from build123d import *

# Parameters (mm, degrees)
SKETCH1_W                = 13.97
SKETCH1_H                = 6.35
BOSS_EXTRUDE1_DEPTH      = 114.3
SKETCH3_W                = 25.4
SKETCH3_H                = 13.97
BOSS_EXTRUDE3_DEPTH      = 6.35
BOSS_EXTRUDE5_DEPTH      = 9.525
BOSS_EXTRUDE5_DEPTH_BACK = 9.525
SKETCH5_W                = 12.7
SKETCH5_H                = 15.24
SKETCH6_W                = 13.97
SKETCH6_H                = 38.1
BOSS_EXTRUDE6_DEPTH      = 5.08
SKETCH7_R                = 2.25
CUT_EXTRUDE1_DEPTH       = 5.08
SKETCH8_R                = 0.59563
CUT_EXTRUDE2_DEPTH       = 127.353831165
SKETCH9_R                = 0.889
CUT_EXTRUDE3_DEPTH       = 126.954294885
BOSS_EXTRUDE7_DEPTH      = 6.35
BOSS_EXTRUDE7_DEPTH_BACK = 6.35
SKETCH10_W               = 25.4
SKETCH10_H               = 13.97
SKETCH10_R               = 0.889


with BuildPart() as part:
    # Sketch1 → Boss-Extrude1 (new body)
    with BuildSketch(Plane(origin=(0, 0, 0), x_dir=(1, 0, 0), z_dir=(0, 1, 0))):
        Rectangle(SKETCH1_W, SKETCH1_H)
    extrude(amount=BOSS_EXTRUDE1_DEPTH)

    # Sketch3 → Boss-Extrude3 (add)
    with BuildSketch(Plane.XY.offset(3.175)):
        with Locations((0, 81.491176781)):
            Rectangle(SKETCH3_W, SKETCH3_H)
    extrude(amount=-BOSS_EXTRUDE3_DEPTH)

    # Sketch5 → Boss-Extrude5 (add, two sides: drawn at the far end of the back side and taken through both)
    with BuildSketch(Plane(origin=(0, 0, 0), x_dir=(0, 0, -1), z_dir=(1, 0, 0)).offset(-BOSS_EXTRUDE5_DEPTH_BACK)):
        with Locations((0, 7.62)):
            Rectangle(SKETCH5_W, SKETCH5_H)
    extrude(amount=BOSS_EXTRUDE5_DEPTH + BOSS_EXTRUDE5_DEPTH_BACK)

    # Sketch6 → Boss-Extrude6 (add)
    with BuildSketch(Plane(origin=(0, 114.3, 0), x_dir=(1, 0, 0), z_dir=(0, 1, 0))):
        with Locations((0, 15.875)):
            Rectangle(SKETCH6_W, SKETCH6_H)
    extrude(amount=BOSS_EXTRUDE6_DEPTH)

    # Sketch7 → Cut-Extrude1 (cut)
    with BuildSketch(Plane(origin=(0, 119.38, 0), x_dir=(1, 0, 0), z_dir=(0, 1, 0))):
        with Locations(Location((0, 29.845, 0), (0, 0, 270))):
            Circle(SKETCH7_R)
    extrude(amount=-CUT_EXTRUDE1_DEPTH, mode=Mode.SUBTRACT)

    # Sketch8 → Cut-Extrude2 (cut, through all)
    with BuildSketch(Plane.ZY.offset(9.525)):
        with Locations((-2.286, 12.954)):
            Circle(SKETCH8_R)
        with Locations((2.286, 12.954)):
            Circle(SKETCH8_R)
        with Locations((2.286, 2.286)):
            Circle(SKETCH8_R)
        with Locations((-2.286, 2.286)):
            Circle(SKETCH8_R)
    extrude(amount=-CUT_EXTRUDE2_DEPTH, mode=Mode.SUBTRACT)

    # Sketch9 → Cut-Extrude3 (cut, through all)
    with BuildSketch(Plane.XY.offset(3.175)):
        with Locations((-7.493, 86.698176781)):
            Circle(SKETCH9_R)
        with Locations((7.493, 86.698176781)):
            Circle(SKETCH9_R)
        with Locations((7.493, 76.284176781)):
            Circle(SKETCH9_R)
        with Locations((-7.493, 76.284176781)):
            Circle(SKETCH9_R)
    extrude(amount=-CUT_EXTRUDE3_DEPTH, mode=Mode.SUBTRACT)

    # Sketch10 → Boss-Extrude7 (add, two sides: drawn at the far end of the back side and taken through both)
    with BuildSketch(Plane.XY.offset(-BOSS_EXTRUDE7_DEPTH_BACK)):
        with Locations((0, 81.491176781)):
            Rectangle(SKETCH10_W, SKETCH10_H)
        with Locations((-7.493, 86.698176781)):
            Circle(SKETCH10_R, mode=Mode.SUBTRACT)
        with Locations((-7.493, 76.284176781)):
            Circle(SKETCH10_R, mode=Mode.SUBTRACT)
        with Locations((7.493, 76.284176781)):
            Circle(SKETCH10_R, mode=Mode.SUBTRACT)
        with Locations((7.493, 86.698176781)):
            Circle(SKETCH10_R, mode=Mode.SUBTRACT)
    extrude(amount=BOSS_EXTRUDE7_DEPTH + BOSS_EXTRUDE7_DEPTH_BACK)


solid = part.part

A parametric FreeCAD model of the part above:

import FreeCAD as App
import Part
import Sketcher

V = App.Vector
Q = App.Units.Quantity

doc = App.newDocument("Part")
body = doc.addObject("PartDesign::Body", "Body")

# Sketch on XZ plane
sketch1 = doc.addObject("Sketcher::SketchObject", "Sketch")
body.addObject(sketch1)
sketch1.AttachmentSupport = (doc.XZ_Plane, [""])
sketch1.MapMode = "FlatFace"
sketch1.addGeometry(Part.LineSegment(V(-6.985, -3.175, 0), V(-6.985, 3.175, 0)), False)
sketch1.addGeometry(Part.LineSegment(V(-6.985, 3.175, 0), V(6.985, 3.175, 0)), False)
sketch1.addGeometry(Part.LineSegment(V(6.985, 3.175, 0), V(6.985, -3.175, 0)), False)
sketch1.addGeometry(Part.LineSegment(V(6.985, -3.175, 0), V(-6.985, -3.175, 0)), False)
sketch1.addConstraint(Sketcher.Constraint("Coincident", 0, 2, 1, 1))
sketch1.addConstraint(Sketcher.Constraint("Coincident", 1, 2, 2, 1))
sketch1.addConstraint(Sketcher.Constraint("Coincident", 2, 2, 3, 1))
sketch1.addConstraint(Sketcher.Constraint("Coincident", 3, 2, 0, 1))
sketch1.addConstraint(Sketcher.Constraint("Vertical", 0))
sketch1.addConstraint(Sketcher.Constraint("Horizontal", 1))
sketch1.addConstraint(Sketcher.Constraint("Vertical", 2))
sketch1.addConstraint(Sketcher.Constraint("Horizontal", 3))
sketch1.addConstraint(Sketcher.Constraint("Symmetric", 0, 2, 2, 2, -1, 1))
sketch1.addConstraint(Sketcher.Constraint("DistanceX", 1, 1, 1, 2, Q("0.55 in")))
sketch1.addConstraint(Sketcher.Constraint("DistanceY", 0, 1, 0, 2, Q("0.25 in")))
pad1 = doc.addObject("PartDesign::Pad", "Pad")
body.addObject(pad1)
pad1.Profile = sketch1
pad1.Length = Q("4.5 in")
pad1.Reversed = True

# Sketch on XY plane
sketch2 = doc.addObject("Sketcher::SketchObject", "Sketch001")
body.addObject(sketch2)
sketch2.AttachmentSupport = (doc.XY_Plane, [""])
sketch2.MapMode = "FlatFace"
sketch2.AttachmentOffset = App.Placement(V(0, 0, 0.125 * 25.4), App.Rotation())
sketch2.addGeometry(Part.LineSegment(V(-12.7, 88.476177, 0), V(-12.7, 74.506177, 0)), False)
sketch2.addGeometry(Part.LineSegment(V(-12.7, 74.506177, 0), V(12.7, 74.506177, 0)), False)
sketch2.addGeometry(Part.LineSegment(V(12.7, 74.506177, 0), V(12.7, 88.476177, 0)), False)
sketch2.addGeometry(Part.LineSegment(V(12.7, 88.476177, 0), V(-12.7, 88.476177, 0)), False)
sketch2.addConstraint(Sketcher.Constraint("Coincident", 0, 2, 1, 1))
sketch2.addConstraint(Sketcher.Constraint("Coincident", 1, 2, 2, 1))
sketch2.addConstraint(Sketcher.Constraint("Coincident", 2, 2, 3, 1))
sketch2.addConstraint(Sketcher.Constraint("Coincident", 3, 2, 0, 1))
sketch2.addConstraint(Sketcher.Constraint("Vertical", 0))
sketch2.addConstraint(Sketcher.Constraint("Horizontal", 1))
sketch2.addConstraint(Sketcher.Constraint("Vertical", 2))
sketch2.addConstraint(Sketcher.Constraint("Horizontal", 3))
sketch2.addConstraint(Sketcher.Constraint("DistanceX", 1, 1, 1, 2, Q("1 in")))
sketch2.addConstraint(Sketcher.Constraint("DistanceY", 0, 2, 0, 1, Q("0.55 in")))
sketch2.addConstraint(Sketcher.Constraint("DistanceX", 0, 2, -1, 1, Q("0.5 in")))
sketch2.addConstraint(Sketcher.Constraint("DistanceY", -1, 1, 0, 2, 74.506177))
pad2 = doc.addObject("PartDesign::Pad", "Pad001")
body.addObject(pad2)
pad2.Profile = sketch2
pad2.Length = Q("0.25 in")
pad2.Reversed = True

# Sketch on YZ plane
sketch3 = doc.addObject("Sketcher::SketchObject", "Sketch002")
body.addObject(sketch3)
sketch3.AttachmentSupport = (doc.YZ_Plane, [""])
sketch3.MapMode = "FlatFace"
sketch3.addGeometry(Part.LineSegment(V(15.24, 6.35, 0), V(0, 6.35, 0)), False)
sketch3.addGeometry(Part.LineSegment(V(0, 6.35, 0), V(0, -6.35, 0)), False)
sketch3.addGeometry(Part.LineSegment(V(0, -6.35, 0), V(15.24, -6.35, 0)), False)
sketch3.addGeometry(Part.LineSegment(V(15.24, -6.35, 0), V(15.24, 6.35, 0)), False)
sketch3.addConstraint(Sketcher.Constraint("Coincident", 0, 2, 1, 1))
sketch3.addConstraint(Sketcher.Constraint("Coincident", 1, 2, 2, 1))
sketch3.addConstraint(Sketcher.Constraint("Coincident", 2, 2, 3, 1))
sketch3.addConstraint(Sketcher.Constraint("Coincident", 3, 2, 0, 1))
sketch3.addConstraint(Sketcher.Constraint("Horizontal", 0))
sketch3.addConstraint(Sketcher.Constraint("Vertical", 1))
sketch3.addConstraint(Sketcher.Constraint("Horizontal", 2))
sketch3.addConstraint(Sketcher.Constraint("Vertical", 3))
sketch3.addConstraint(Sketcher.Constraint("Symmetric", 0, 2, 1, 2, -1, 1))
sketch3.addConstraint(Sketcher.Constraint("DistanceX", 0, 2, 0, 1, Q("0.6 in")))
sketch3.addConstraint(Sketcher.Constraint("DistanceY", 1, 2, 1, 1, Q("0.5 in")))
pad3 = doc.addObject("PartDesign::Pad", "Pad002")
body.addObject(pad3)
pad3.Profile = sketch3
pad3.Type = "TwoLengths"
pad3.Length = Q("0.375 in")
pad3.Length2 = Q("0.375 in")

# Sketch on XZ plane
sketch4 = doc.addObject("Sketcher::SketchObject", "Sketch003")
body.addObject(sketch4)
sketch4.AttachmentSupport = (doc.XZ_Plane, [""])
sketch4.MapMode = "FlatFace"
sketch4.AttachmentOffset = App.Placement(V(0, 0, -4.5 * 25.4), App.Rotation())
sketch4.addGeometry(Part.LineSegment(V(-6.985, -34.925, 0), V(-6.985, 3.175, 0)), False)
sketch4.addGeometry(Part.LineSegment(V(-6.985, 3.175, 0), V(6.985, 3.175, 0)), False)
sketch4.addGeometry(Part.LineSegment(V(6.985, 3.175, 0), V(6.985, -34.925, 0)), False)
sketch4.addGeometry(Part.LineSegment(V(6.985, -34.925, 0), V(-6.985, -34.925, 0)), False)
sketch4.addConstraint(Sketcher.Constraint("Coincident", 0, 2, 1, 1))
sketch4.addConstraint(Sketcher.Constraint("Coincident", 1, 2, 2, 1))
sketch4.addConstraint(Sketcher.Constraint("Coincident", 2, 2, 3, 1))
sketch4.addConstraint(Sketcher.Constraint("Coincident", 3, 2, 0, 1))
sketch4.addConstraint(Sketcher.Constraint("Vertical", 0))
sketch4.addConstraint(Sketcher.Constraint("Horizontal", 1))
sketch4.addConstraint(Sketcher.Constraint("Vertical", 2))
sketch4.addConstraint(Sketcher.Constraint("Horizontal", 3))
sketch4.addConstraint(Sketcher.Constraint("DistanceY", 0, 1, 0, 2, Q("1.5 in")))
sketch4.addConstraint(Sketcher.Constraint("DistanceX", 1, 1, 1, 2, Q("0.55 in")))
sketch4.addConstraint(Sketcher.Constraint("DistanceX", 0, 2, -1, 1, Q("0.275 in")))
sketch4.addConstraint(Sketcher.Constraint("DistanceY", -1, 1, 0, 2, Q("0.125 in")))
pad4 = doc.addObject("PartDesign::Pad", "Pad003")
body.addObject(pad4)
pad4.Profile = sketch4
pad4.Length = Q("0.2 in")
pad4.Reversed = True

# Sketch on XZ plane
sketch5 = doc.addObject("Sketcher::SketchObject", "Sketch004")
body.addObject(sketch5)
sketch5.AttachmentSupport = (doc.XZ_Plane, [""])
sketch5.MapMode = "FlatFace"
sketch5.AttachmentOffset = App.Placement(V(0, 0, -4.7 * 25.4), App.Rotation())
sketch5.addGeometry(Part.Circle(V(0, -29.845, 0), V(0, 0, 1), 2.25), False)
sketch5.addConstraint(Sketcher.Constraint("PointOnObject", 0, 3, -2))
sketch5.addConstraint(Sketcher.Constraint("Diameter", 0, 4.5))
sketch5.addConstraint(Sketcher.Constraint("DistanceY", 0, 3, -1, 1, Q("1.175 in")))
pocket1 = doc.addObject("PartDesign::Pocket", "Pocket")
body.addObject(pocket1)
pocket1.Profile = sketch5
pocket1.Length = Q("0.2 in")
pocket1.Reversed = True

# Sketch on YZ plane
sketch6 = doc.addObject("Sketcher::SketchObject", "Sketch005")
body.addObject(sketch6)
sketch6.AttachmentSupport = (doc.YZ_Plane, [""])
sketch6.MapMode = "FlatFace"
sketch6.AttachmentOffset = App.Placement(V(0, 0, -0.375 * 25.4), App.Rotation())
sketch6.addGeometry(Part.Circle(V(12.954, -2.286, 0), V(0, 0, 1), 0.59563), False)
sketch6.addGeometry(Part.Circle(V(12.954, 2.286, 0), V(0, 0, 1), 0.59563), False)
sketch6.addGeometry(Part.Circle(V(2.286, 2.286, 0), V(0, 0, 1), 0.59563), False)
sketch6.addGeometry(Part.Circle(V(2.286, -2.286, 0), V(0, 0, 1), 0.59563), False)
sketch6.addConstraint(Sketcher.Constraint("Equal", 0, 1))
sketch6.addConstraint(Sketcher.Constraint("Equal", 1, 2))
sketch6.addConstraint(Sketcher.Constraint("Equal", 2, 3))
sketch6.addConstraint(Sketcher.Constraint("Symmetric", 0, 3, 1, 3, -1))
sketch6.addConstraint(Sketcher.Constraint("Symmetric", 2, 3, 3, 3, -1))
sketch6.addConstraint(Sketcher.Constraint("Horizontal", 1, 3, 2, 3))
sketch6.addConstraint(Sketcher.Constraint("Diameter", 0, Q("0.0469 in")))
sketch6.addConstraint(Sketcher.Constraint("DistanceX", -1, 1, 0, 3, Q("0.51 in")))
sketch6.addConstraint(Sketcher.Constraint("DistanceY", 0, 3, -1, 1, Q("0.09 in")))
sketch6.addConstraint(Sketcher.Constraint("DistanceX", -1, 1, 2, 3, Q("0.09 in")))
pocket2 = doc.addObject("PartDesign::Pocket", "Pocket001")
body.addObject(pocket2)
pocket2.Profile = sketch6
pocket2.Type = "ThroughAll"
pocket2.Reversed = True

# Sketch on XY plane
sketch7 = doc.addObject("Sketcher::SketchObject", "Sketch006")
body.addObject(sketch7)
sketch7.AttachmentSupport = (doc.XY_Plane, [""])
sketch7.MapMode = "FlatFace"
sketch7.AttachmentOffset = App.Placement(V(0, 0, 0.125 * 25.4), App.Rotation())
sketch7.addGeometry(Part.Circle(V(-7.493, 86.698177, 0), V(0, 0, 1), 0.889), False)
sketch7.addGeometry(Part.Circle(V(7.493, 86.698177, 0), V(0, 0, 1), 0.889), False)
sketch7.addGeometry(Part.Circle(V(7.493, 76.284177, 0), V(0, 0, 1), 0.889), False)
sketch7.addGeometry(Part.Circle(V(-7.493, 76.284177, 0), V(0, 0, 1), 0.889), False)
sketch7.addConstraint(Sketcher.Constraint("Equal", 0, 1))
sketch7.addConstraint(Sketcher.Constraint("Equal", 1, 2))
sketch7.addConstraint(Sketcher.Constraint("Equal", 2, 3))
sketch7.addConstraint(Sketcher.Constraint("Symmetric", 0, 3, 1, 3, -2))
sketch7.addConstraint(Sketcher.Constraint("Symmetric", 2, 3, 3, 3, -2))
sketch7.addConstraint(Sketcher.Constraint("Vertical", 1, 3, 2, 3))
sketch7.addConstraint(Sketcher.Constraint("Diameter", 0, Q("0.07 in")))
sketch7.addConstraint(Sketcher.Constraint("DistanceX", 0, 3, 1, 3, Q("0.59 in")))
sketch7.addConstraint(Sketcher.Constraint("DistanceY", 2, 3, 1, 3, Q("0.41 in")))
sketch7.addConstraint(Sketcher.Constraint("DistanceY", -1, 1, 0, 3, 86.698177))
pocket3 = doc.addObject("PartDesign::Pocket", "Pocket002")
body.addObject(pocket3)
pocket3.Profile = sketch7
pocket3.Type = "ThroughAll"

# Sketch on XY plane
sketch8 = doc.addObject("Sketcher::SketchObject", "Sketch007")
body.addObject(sketch8)
sketch8.AttachmentSupport = (doc.XY_Plane, [""])
sketch8.MapMode = "FlatFace"
sketch8.addGeometry(Part.LineSegment(V(-12.7, 88.476177, 0), V(-12.7, 74.506177, 0)), False)
sketch8.addGeometry(Part.LineSegment(V(-12.7, 74.506177, 0), V(12.7, 74.506177, 0)), False)
sketch8.addGeometry(Part.LineSegment(V(12.7, 74.506177, 0), V(12.7, 88.476177, 0)), False)
sketch8.addGeometry(Part.LineSegment(V(12.7, 88.476177, 0), V(-12.7, 88.476177, 0)), False)
sketch8.addGeometry(Part.Circle(V(-7.493, 76.284177, 0), V(0, 0, 1), 0.889), False)
sketch8.addGeometry(Part.Circle(V(7.493, 76.284177, 0), V(0, 0, 1), 0.889), False)
sketch8.addGeometry(Part.Circle(V(-7.493, 86.698177, 0), V(0, 0, 1), 0.889), False)
sketch8.addGeometry(Part.Circle(V(7.493, 86.698177, 0), V(0, 0, 1), 0.889), False)
sketch8.addConstraint(Sketcher.Constraint("Coincident", 0, 2, 1, 1))
sketch8.addConstraint(Sketcher.Constraint("Coincident", 1, 2, 2, 1))
sketch8.addConstraint(Sketcher.Constraint("Coincident", 2, 2, 3, 1))
sketch8.addConstraint(Sketcher.Constraint("Coincident", 3, 2, 0, 1))
sketch8.addConstraint(Sketcher.Constraint("Vertical", 0))
sketch8.addConstraint(Sketcher.Constraint("Horizontal", 1))
sketch8.addConstraint(Sketcher.Constraint("Vertical", 2))
sketch8.addConstraint(Sketcher.Constraint("Horizontal", 3))
sketch8.addConstraint(Sketcher.Constraint("Equal", 4, 5))
sketch8.addConstraint(Sketcher.Constraint("Equal", 5, 6))
sketch8.addConstraint(Sketcher.Constraint("Equal", 6, 7))
sketch8.addConstraint(Sketcher.Constraint("Symmetric", 4, 3, 5, 3, -2))
sketch8.addConstraint(Sketcher.Constraint("Symmetric", 6, 3, 7, 3, -2))
sketch8.addConstraint(Sketcher.Constraint("Vertical", 4, 3, 6, 3))
sketch8.addConstraint(Sketcher.Constraint("Diameter", 4, Q("0.07 in")))
sketch8.addConstraint(Sketcher.Constraint("DistanceX", 1, 1, 1, 2, Q("1 in")))
sketch8.addConstraint(Sketcher.Constraint("DistanceY", 0, 2, 0, 1, Q("0.55 in")))
sketch8.addConstraint(Sketcher.Constraint("DistanceX", 0, 2, -1, 1, Q("0.5 in")))
sketch8.addConstraint(Sketcher.Constraint("DistanceX", 4, 3, 5, 3, Q("0.59 in")))
sketch8.addConstraint(Sketcher.Constraint("DistanceY", 4, 3, 6, 3, Q("0.41 in")))
sketch8.addConstraint(Sketcher.Constraint("DistanceY", 0, 2, 4, 3, Q("0.07 in")))
sketch8.addConstraint(Sketcher.Constraint("DistanceY", -1, 1, 4, 3, 76.284177))
pad5 = doc.addObject("PartDesign::Pad", "Pad004")
body.addObject(pad5)
pad5.Profile = sketch8
pad5.Type = "TwoLengths"
pad5.Length = Q("0.25 in")
pad5.Length2 = Q("0.25 in")

doc.recompute()
